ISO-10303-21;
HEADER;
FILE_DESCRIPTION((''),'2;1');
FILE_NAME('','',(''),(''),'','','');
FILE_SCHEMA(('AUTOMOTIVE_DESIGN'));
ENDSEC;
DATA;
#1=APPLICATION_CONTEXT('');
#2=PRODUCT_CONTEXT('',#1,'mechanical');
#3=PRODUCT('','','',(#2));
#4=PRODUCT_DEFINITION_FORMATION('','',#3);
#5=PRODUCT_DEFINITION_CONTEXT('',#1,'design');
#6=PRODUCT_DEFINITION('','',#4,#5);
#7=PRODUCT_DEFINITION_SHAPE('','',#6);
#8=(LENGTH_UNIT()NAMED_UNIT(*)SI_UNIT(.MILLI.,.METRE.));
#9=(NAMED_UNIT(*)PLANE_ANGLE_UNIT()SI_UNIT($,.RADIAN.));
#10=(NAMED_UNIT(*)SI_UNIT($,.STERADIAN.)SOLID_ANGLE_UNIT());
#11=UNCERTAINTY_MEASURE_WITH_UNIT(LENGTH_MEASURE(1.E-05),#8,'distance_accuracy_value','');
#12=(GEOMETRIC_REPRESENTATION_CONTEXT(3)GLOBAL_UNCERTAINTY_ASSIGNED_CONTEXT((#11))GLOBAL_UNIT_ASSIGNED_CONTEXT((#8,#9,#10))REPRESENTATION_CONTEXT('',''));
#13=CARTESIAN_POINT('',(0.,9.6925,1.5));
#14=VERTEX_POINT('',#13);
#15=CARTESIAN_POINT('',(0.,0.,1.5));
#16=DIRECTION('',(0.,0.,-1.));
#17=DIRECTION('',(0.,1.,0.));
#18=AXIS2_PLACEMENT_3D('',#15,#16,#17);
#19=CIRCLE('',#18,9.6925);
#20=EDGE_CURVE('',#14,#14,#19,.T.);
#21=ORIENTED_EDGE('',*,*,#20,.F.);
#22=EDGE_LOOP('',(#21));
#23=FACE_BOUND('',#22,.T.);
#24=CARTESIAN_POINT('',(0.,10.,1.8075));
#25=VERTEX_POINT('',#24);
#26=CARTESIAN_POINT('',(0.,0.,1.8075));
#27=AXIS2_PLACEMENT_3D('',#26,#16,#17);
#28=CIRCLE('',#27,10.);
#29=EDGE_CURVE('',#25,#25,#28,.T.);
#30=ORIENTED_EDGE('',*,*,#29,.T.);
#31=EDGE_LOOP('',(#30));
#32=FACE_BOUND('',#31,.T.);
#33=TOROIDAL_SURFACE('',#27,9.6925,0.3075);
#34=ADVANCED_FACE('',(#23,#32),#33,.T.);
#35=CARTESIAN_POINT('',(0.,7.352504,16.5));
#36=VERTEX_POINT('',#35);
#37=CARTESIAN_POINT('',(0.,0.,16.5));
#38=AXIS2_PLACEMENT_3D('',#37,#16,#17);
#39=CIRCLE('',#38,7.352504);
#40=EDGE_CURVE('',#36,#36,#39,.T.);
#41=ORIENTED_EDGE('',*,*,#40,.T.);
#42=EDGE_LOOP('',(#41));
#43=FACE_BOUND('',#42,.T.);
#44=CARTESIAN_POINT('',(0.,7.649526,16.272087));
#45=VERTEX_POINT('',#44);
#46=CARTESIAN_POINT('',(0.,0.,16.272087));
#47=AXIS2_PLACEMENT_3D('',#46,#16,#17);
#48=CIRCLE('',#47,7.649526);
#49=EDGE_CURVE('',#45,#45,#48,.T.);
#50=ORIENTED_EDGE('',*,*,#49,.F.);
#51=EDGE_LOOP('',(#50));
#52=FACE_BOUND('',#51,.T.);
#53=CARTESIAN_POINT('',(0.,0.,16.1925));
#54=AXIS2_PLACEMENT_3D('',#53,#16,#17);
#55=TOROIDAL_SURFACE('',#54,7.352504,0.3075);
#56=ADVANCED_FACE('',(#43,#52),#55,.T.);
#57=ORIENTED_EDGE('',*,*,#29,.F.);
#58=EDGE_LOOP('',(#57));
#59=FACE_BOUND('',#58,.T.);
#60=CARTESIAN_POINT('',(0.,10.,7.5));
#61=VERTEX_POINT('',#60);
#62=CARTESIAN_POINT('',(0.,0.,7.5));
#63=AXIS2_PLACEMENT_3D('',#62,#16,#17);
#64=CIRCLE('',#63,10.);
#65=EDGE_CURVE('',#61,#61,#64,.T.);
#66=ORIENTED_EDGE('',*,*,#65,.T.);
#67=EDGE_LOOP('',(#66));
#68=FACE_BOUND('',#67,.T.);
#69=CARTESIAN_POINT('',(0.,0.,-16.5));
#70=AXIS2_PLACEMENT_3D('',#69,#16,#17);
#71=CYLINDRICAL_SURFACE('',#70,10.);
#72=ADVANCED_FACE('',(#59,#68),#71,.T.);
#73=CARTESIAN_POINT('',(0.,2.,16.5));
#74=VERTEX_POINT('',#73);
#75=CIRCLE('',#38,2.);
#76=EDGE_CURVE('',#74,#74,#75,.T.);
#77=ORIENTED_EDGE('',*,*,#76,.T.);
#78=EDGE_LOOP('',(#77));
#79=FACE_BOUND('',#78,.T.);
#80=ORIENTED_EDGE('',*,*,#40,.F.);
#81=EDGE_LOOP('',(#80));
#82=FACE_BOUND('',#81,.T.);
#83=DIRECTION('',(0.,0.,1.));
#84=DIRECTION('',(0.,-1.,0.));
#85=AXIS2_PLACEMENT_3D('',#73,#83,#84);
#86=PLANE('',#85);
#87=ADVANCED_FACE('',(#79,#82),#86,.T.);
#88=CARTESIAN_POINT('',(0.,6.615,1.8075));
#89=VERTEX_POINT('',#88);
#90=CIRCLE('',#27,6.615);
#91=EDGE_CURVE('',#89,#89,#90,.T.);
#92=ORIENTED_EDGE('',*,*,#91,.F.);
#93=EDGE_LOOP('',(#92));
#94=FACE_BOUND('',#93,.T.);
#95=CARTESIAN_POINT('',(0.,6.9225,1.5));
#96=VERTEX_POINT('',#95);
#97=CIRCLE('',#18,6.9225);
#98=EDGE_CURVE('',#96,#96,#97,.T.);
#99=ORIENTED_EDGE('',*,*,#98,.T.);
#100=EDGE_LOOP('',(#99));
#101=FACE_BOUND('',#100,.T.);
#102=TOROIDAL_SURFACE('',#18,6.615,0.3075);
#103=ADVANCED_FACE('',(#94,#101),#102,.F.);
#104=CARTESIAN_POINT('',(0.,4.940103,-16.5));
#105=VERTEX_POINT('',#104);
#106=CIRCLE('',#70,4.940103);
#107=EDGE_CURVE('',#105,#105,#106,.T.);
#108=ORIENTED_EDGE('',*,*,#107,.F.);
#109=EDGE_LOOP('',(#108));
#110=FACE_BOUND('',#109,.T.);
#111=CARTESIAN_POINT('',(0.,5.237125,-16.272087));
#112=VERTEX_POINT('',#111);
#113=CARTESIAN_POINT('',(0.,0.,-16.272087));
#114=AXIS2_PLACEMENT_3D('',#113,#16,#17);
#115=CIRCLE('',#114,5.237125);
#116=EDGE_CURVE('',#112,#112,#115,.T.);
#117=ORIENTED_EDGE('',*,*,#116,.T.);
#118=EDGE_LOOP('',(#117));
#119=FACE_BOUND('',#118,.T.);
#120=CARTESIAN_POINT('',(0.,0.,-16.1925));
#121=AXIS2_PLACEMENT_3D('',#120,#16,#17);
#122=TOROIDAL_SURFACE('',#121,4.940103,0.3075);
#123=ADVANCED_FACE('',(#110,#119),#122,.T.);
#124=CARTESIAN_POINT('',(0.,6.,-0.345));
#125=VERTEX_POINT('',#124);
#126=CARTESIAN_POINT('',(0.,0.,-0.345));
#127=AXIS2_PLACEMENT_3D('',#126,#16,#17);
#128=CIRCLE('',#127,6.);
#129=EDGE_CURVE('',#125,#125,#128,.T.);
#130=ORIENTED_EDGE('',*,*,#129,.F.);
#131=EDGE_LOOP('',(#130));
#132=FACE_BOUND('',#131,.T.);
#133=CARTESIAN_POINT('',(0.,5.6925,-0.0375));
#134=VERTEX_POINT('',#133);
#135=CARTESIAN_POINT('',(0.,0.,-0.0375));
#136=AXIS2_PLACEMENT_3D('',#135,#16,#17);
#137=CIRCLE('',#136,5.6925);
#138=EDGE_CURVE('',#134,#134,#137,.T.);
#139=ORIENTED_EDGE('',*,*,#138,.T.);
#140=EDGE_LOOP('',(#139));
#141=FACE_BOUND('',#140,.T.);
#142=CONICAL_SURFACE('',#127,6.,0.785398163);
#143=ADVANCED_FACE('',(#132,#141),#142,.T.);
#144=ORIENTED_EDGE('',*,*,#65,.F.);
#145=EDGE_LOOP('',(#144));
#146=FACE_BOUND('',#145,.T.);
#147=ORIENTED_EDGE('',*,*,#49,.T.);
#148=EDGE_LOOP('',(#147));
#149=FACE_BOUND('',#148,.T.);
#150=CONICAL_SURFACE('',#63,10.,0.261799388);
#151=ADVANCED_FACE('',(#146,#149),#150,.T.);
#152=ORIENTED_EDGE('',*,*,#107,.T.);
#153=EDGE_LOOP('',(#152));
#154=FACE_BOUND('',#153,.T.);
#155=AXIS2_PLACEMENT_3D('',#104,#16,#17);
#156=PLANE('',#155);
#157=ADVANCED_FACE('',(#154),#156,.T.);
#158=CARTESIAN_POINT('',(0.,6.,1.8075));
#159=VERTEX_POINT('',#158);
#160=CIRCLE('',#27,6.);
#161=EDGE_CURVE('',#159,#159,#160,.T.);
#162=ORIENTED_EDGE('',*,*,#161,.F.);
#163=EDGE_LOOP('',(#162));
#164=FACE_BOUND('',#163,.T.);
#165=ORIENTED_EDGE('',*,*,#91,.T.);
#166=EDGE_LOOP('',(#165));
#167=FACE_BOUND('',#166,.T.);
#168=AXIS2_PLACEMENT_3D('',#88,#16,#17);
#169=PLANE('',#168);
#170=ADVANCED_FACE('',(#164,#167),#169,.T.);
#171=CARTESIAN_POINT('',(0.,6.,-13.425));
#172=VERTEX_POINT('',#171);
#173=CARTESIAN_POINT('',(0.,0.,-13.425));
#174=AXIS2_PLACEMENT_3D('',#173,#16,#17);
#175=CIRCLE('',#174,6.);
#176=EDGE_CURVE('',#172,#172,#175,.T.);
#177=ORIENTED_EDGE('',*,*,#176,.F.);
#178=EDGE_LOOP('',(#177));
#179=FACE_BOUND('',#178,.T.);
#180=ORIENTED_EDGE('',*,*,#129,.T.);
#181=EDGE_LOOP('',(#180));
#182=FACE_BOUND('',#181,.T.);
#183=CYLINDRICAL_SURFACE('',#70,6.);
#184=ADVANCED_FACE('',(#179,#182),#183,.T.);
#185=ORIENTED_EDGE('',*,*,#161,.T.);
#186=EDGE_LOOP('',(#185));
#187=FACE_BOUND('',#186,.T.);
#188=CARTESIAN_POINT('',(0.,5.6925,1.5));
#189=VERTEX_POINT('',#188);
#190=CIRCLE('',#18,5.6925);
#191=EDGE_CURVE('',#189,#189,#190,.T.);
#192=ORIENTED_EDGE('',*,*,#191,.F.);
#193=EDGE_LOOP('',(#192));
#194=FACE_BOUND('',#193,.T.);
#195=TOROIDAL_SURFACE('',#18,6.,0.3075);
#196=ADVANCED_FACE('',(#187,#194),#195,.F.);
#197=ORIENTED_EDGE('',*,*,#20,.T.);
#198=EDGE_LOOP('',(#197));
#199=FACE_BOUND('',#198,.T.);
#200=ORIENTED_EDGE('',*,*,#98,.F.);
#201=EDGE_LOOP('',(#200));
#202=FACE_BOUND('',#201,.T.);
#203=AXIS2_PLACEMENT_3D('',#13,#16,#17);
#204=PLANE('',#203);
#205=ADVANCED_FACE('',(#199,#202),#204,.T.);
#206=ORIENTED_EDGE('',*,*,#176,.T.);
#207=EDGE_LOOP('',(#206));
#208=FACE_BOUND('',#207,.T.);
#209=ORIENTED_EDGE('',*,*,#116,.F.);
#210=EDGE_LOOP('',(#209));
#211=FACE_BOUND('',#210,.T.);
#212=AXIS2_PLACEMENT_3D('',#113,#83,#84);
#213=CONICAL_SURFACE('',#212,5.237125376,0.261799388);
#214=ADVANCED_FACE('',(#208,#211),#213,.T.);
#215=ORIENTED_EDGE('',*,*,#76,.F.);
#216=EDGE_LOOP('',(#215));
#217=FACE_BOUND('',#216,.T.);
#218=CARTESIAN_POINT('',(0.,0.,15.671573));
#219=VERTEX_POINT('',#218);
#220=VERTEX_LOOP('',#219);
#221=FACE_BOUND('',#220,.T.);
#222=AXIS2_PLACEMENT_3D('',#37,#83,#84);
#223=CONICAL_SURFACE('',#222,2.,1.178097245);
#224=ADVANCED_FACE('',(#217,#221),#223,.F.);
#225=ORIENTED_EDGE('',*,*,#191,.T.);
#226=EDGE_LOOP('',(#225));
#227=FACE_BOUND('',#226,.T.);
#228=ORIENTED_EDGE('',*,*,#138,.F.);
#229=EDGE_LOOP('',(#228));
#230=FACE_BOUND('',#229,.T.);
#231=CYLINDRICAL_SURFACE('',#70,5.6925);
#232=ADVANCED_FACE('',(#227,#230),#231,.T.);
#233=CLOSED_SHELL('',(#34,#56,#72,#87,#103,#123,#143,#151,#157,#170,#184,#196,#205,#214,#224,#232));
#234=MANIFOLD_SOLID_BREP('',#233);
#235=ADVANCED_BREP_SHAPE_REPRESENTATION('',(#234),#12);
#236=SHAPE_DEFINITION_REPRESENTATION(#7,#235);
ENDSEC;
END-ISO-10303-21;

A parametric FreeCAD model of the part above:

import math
import FreeCAD as App
import Part
import Sketcher
Q = App.Units.Quantity

doc = App.newDocument("Part")
body = doc.addObject("PartDesign::Body", "Body")

# Sketch on YZ plane
sketch1 = body.newObject("Sketcher::SketchObject", "Sketch")
sketch1.AttachmentSupport = (doc.getObject("YZ_Plane"), [""])
sketch1.MapMode = "FlatFace"
sketch1.addGeometry([
    Part.LineSegment(App.Vector(7.35, 16.5, 0), App.Vector(2, 16.5, 0)),  # 0
    Part.LineSegment(App.Vector(2, 16.5, 0), App.Vector(0, 15.67, 0)),  # 1
    Part.LineSegment(App.Vector(0, 15.67, 0), App.Vector(0, -16.5, 0)),  # 2
    Part.LineSegment(App.Vector(0, -16.5, 0), App.Vector(4.94, -16.5, 0)),  # 3
    Part.ArcOfCircle(Part.Circle(App.Vector(4.94, -16.19, 0), App.Vector(0, 0, 1), 0.31), math.radians(-90), math.radians(-15)),  # 4
    Part.LineSegment(App.Vector(5.24, -16.27, 0), App.Vector(6, -13.43, 0)),  # 5
    Part.LineSegment(App.Vector(6, -13.43, 0), App.Vector(6, -0.34, 0)),  # 6
    Part.LineSegment(App.Vector(6, -0.34, 0), App.Vector(5.69, -0.04, 0)),  # 7
    Part.LineSegment(App.Vector(5.69, -0.04, 0), App.Vector(5.69, 1.5, 0)),  # 8
    Part.ArcOfCircle(Part.Circle(App.Vector(6, 1.5, 0), App.Vector(0, 0, 1), 0.31), math.radians(90), math.radians(180)),  # 9
    Part.LineSegment(App.Vector(6, 1.81, 0), App.Vector(6.62, 1.81, 0)),  # 10
    Part.ArcOfCircle(Part.Circle(App.Vector(6.61, 1.5, 0), App.Vector(0, 0, 1), 0.31), math.radians(0), math.radians(90)),  # 11
    Part.LineSegment(App.Vector(6.92, 1.5, 0), App.Vector(9.69, 1.5, 0)),  # 12
    Part.ArcOfCircle(Part.Circle(App.Vector(9.69, 1.81, 0), App.Vector(0, 0, 1), 0.31), math.radians(-90), math.radians(0)),  # 13
    Part.LineSegment(App.Vector(10, 1.81, 0), App.Vector(10, 7.5, 0)),  # 14
    Part.LineSegment(App.Vector(10, 7.5, 0), App.Vector(7.65, 16.27, 0)),  # 15
    Part.ArcOfCircle(Part.Circle(App.Vector(7.35, 16.19, 0), App.Vector(0, 0, 1), 0.31), math.radians(15), math.radians(90)),  # 16
], False)
sketch1.addConstraint([
    Sketcher.Constraint("Coincident", 0, 2, 1, 1),
    Sketcher.Constraint("Coincident", 1, 2, 2, 1),
    Sketcher.Constraint("Coincident", 2, 2, 3, 1),
    Sketcher.Constraint("Tangent", 3, 2, 4, 1),
    Sketcher.Constraint("Tangent", 4, 2, 5, 1),
    Sketcher.Constraint("Coincident", 5, 2, 6, 1),
    Sketcher.Constraint("Coincident", 6, 2, 7, 1),
    Sketcher.Constraint("Coincident", 7, 2, 8, 1),
    Sketcher.Constraint("Tangent", 8, 2, 9, 2),
    Sketcher.Constraint("Tangent", 9, 1, 10, 1),
    Sketcher.Constraint("Tangent", 10, 2, 11, 2),
    Sketcher.Constraint("Coincident", 11, 1, 12, 1),
    Sketcher.Constraint("Tangent", 12, 2, 13, 1),
    Sketcher.Constraint("Tangent", 13, 2, 14, 1),
    Sketcher.Constraint("Coincident", 14, 2, 15, 1),
    Sketcher.Constraint("Tangent", 15, 2, 16, 1),
    Sketcher.Constraint("Tangent", 16, 2, 0, 1),
    Sketcher.Constraint("Horizontal", 0),
    Sketcher.Constraint("Vertical", 2),
    Sketcher.Constraint("Horizontal", 3),
    Sketcher.Constraint("Vertical", 6),
    Sketcher.Constraint("Vertical", 8),
    Sketcher.Constraint("Horizontal", 10),
    Sketcher.Constraint("Horizontal", 12),
    Sketcher.Constraint("Vertical", 14),
    Sketcher.Constraint("Equal", 4, 9),
    Sketcher.Constraint("Equal", 9, 11),
    Sketcher.Constraint("Equal", 11, 13),
    Sketcher.Constraint("Equal", 13, 16),
    Sketcher.Constraint("PointOnObject", 1, 2, -2),
    Sketcher.Constraint("Horizontal", 13, 3, 9, 1),
    Sketcher.Constraint("Vertical", 9, 3, 5, 2),
    Sketcher.Constraint("Angle", 5, Q("75 deg")),
    Sketcher.Constraint("Angle", 7, Q("135 deg")),
    Sketcher.Constraint("Angle", 15, Q("105 deg")),
    Sketcher.Constraint("DistanceX", -1, 1, 9, 3, 6.0),
    Sketcher.Constraint("DistanceX", -1, 1, 0, 2, 2.0),
    Sketcher.Constraint("DistanceX", -1, 1, 13, 2, 10.0),
    Sketcher.Constraint("Angle", 1, Q("-157.5 deg")),
    Sketcher.Constraint("DistanceY", 4, 3, 13, 3, 18.0),
    Sketcher.Constraint("DistanceY", 9, 3, 0, 2, 15.0),
    Sketcher.Constraint("DistanceY", 12, 2, 14, 2, 6.0),
    Sketcher.Constraint("DistanceX", 12, 1, 12, 2, 2.77),
    Sketcher.Constraint("DistanceY", 6, 1, 6, 2, 13.08),
    Sketcher.Constraint("DistanceY", -1, 1, 9, 3, 1.5),
    Sketcher.Constraint("Radius", 4, 0.3075),
    Sketcher.Constraint("DistanceY", 8, 1, 8, 2, 1.5375),
])
revolution = body.newObject("PartDesign::Revolution", "Revolution")
revolution.Profile = sketch1
revolution.ReferenceAxis = (sketch1, ["V_Axis"])
revolution.Angle = 360

doc.recompute()
